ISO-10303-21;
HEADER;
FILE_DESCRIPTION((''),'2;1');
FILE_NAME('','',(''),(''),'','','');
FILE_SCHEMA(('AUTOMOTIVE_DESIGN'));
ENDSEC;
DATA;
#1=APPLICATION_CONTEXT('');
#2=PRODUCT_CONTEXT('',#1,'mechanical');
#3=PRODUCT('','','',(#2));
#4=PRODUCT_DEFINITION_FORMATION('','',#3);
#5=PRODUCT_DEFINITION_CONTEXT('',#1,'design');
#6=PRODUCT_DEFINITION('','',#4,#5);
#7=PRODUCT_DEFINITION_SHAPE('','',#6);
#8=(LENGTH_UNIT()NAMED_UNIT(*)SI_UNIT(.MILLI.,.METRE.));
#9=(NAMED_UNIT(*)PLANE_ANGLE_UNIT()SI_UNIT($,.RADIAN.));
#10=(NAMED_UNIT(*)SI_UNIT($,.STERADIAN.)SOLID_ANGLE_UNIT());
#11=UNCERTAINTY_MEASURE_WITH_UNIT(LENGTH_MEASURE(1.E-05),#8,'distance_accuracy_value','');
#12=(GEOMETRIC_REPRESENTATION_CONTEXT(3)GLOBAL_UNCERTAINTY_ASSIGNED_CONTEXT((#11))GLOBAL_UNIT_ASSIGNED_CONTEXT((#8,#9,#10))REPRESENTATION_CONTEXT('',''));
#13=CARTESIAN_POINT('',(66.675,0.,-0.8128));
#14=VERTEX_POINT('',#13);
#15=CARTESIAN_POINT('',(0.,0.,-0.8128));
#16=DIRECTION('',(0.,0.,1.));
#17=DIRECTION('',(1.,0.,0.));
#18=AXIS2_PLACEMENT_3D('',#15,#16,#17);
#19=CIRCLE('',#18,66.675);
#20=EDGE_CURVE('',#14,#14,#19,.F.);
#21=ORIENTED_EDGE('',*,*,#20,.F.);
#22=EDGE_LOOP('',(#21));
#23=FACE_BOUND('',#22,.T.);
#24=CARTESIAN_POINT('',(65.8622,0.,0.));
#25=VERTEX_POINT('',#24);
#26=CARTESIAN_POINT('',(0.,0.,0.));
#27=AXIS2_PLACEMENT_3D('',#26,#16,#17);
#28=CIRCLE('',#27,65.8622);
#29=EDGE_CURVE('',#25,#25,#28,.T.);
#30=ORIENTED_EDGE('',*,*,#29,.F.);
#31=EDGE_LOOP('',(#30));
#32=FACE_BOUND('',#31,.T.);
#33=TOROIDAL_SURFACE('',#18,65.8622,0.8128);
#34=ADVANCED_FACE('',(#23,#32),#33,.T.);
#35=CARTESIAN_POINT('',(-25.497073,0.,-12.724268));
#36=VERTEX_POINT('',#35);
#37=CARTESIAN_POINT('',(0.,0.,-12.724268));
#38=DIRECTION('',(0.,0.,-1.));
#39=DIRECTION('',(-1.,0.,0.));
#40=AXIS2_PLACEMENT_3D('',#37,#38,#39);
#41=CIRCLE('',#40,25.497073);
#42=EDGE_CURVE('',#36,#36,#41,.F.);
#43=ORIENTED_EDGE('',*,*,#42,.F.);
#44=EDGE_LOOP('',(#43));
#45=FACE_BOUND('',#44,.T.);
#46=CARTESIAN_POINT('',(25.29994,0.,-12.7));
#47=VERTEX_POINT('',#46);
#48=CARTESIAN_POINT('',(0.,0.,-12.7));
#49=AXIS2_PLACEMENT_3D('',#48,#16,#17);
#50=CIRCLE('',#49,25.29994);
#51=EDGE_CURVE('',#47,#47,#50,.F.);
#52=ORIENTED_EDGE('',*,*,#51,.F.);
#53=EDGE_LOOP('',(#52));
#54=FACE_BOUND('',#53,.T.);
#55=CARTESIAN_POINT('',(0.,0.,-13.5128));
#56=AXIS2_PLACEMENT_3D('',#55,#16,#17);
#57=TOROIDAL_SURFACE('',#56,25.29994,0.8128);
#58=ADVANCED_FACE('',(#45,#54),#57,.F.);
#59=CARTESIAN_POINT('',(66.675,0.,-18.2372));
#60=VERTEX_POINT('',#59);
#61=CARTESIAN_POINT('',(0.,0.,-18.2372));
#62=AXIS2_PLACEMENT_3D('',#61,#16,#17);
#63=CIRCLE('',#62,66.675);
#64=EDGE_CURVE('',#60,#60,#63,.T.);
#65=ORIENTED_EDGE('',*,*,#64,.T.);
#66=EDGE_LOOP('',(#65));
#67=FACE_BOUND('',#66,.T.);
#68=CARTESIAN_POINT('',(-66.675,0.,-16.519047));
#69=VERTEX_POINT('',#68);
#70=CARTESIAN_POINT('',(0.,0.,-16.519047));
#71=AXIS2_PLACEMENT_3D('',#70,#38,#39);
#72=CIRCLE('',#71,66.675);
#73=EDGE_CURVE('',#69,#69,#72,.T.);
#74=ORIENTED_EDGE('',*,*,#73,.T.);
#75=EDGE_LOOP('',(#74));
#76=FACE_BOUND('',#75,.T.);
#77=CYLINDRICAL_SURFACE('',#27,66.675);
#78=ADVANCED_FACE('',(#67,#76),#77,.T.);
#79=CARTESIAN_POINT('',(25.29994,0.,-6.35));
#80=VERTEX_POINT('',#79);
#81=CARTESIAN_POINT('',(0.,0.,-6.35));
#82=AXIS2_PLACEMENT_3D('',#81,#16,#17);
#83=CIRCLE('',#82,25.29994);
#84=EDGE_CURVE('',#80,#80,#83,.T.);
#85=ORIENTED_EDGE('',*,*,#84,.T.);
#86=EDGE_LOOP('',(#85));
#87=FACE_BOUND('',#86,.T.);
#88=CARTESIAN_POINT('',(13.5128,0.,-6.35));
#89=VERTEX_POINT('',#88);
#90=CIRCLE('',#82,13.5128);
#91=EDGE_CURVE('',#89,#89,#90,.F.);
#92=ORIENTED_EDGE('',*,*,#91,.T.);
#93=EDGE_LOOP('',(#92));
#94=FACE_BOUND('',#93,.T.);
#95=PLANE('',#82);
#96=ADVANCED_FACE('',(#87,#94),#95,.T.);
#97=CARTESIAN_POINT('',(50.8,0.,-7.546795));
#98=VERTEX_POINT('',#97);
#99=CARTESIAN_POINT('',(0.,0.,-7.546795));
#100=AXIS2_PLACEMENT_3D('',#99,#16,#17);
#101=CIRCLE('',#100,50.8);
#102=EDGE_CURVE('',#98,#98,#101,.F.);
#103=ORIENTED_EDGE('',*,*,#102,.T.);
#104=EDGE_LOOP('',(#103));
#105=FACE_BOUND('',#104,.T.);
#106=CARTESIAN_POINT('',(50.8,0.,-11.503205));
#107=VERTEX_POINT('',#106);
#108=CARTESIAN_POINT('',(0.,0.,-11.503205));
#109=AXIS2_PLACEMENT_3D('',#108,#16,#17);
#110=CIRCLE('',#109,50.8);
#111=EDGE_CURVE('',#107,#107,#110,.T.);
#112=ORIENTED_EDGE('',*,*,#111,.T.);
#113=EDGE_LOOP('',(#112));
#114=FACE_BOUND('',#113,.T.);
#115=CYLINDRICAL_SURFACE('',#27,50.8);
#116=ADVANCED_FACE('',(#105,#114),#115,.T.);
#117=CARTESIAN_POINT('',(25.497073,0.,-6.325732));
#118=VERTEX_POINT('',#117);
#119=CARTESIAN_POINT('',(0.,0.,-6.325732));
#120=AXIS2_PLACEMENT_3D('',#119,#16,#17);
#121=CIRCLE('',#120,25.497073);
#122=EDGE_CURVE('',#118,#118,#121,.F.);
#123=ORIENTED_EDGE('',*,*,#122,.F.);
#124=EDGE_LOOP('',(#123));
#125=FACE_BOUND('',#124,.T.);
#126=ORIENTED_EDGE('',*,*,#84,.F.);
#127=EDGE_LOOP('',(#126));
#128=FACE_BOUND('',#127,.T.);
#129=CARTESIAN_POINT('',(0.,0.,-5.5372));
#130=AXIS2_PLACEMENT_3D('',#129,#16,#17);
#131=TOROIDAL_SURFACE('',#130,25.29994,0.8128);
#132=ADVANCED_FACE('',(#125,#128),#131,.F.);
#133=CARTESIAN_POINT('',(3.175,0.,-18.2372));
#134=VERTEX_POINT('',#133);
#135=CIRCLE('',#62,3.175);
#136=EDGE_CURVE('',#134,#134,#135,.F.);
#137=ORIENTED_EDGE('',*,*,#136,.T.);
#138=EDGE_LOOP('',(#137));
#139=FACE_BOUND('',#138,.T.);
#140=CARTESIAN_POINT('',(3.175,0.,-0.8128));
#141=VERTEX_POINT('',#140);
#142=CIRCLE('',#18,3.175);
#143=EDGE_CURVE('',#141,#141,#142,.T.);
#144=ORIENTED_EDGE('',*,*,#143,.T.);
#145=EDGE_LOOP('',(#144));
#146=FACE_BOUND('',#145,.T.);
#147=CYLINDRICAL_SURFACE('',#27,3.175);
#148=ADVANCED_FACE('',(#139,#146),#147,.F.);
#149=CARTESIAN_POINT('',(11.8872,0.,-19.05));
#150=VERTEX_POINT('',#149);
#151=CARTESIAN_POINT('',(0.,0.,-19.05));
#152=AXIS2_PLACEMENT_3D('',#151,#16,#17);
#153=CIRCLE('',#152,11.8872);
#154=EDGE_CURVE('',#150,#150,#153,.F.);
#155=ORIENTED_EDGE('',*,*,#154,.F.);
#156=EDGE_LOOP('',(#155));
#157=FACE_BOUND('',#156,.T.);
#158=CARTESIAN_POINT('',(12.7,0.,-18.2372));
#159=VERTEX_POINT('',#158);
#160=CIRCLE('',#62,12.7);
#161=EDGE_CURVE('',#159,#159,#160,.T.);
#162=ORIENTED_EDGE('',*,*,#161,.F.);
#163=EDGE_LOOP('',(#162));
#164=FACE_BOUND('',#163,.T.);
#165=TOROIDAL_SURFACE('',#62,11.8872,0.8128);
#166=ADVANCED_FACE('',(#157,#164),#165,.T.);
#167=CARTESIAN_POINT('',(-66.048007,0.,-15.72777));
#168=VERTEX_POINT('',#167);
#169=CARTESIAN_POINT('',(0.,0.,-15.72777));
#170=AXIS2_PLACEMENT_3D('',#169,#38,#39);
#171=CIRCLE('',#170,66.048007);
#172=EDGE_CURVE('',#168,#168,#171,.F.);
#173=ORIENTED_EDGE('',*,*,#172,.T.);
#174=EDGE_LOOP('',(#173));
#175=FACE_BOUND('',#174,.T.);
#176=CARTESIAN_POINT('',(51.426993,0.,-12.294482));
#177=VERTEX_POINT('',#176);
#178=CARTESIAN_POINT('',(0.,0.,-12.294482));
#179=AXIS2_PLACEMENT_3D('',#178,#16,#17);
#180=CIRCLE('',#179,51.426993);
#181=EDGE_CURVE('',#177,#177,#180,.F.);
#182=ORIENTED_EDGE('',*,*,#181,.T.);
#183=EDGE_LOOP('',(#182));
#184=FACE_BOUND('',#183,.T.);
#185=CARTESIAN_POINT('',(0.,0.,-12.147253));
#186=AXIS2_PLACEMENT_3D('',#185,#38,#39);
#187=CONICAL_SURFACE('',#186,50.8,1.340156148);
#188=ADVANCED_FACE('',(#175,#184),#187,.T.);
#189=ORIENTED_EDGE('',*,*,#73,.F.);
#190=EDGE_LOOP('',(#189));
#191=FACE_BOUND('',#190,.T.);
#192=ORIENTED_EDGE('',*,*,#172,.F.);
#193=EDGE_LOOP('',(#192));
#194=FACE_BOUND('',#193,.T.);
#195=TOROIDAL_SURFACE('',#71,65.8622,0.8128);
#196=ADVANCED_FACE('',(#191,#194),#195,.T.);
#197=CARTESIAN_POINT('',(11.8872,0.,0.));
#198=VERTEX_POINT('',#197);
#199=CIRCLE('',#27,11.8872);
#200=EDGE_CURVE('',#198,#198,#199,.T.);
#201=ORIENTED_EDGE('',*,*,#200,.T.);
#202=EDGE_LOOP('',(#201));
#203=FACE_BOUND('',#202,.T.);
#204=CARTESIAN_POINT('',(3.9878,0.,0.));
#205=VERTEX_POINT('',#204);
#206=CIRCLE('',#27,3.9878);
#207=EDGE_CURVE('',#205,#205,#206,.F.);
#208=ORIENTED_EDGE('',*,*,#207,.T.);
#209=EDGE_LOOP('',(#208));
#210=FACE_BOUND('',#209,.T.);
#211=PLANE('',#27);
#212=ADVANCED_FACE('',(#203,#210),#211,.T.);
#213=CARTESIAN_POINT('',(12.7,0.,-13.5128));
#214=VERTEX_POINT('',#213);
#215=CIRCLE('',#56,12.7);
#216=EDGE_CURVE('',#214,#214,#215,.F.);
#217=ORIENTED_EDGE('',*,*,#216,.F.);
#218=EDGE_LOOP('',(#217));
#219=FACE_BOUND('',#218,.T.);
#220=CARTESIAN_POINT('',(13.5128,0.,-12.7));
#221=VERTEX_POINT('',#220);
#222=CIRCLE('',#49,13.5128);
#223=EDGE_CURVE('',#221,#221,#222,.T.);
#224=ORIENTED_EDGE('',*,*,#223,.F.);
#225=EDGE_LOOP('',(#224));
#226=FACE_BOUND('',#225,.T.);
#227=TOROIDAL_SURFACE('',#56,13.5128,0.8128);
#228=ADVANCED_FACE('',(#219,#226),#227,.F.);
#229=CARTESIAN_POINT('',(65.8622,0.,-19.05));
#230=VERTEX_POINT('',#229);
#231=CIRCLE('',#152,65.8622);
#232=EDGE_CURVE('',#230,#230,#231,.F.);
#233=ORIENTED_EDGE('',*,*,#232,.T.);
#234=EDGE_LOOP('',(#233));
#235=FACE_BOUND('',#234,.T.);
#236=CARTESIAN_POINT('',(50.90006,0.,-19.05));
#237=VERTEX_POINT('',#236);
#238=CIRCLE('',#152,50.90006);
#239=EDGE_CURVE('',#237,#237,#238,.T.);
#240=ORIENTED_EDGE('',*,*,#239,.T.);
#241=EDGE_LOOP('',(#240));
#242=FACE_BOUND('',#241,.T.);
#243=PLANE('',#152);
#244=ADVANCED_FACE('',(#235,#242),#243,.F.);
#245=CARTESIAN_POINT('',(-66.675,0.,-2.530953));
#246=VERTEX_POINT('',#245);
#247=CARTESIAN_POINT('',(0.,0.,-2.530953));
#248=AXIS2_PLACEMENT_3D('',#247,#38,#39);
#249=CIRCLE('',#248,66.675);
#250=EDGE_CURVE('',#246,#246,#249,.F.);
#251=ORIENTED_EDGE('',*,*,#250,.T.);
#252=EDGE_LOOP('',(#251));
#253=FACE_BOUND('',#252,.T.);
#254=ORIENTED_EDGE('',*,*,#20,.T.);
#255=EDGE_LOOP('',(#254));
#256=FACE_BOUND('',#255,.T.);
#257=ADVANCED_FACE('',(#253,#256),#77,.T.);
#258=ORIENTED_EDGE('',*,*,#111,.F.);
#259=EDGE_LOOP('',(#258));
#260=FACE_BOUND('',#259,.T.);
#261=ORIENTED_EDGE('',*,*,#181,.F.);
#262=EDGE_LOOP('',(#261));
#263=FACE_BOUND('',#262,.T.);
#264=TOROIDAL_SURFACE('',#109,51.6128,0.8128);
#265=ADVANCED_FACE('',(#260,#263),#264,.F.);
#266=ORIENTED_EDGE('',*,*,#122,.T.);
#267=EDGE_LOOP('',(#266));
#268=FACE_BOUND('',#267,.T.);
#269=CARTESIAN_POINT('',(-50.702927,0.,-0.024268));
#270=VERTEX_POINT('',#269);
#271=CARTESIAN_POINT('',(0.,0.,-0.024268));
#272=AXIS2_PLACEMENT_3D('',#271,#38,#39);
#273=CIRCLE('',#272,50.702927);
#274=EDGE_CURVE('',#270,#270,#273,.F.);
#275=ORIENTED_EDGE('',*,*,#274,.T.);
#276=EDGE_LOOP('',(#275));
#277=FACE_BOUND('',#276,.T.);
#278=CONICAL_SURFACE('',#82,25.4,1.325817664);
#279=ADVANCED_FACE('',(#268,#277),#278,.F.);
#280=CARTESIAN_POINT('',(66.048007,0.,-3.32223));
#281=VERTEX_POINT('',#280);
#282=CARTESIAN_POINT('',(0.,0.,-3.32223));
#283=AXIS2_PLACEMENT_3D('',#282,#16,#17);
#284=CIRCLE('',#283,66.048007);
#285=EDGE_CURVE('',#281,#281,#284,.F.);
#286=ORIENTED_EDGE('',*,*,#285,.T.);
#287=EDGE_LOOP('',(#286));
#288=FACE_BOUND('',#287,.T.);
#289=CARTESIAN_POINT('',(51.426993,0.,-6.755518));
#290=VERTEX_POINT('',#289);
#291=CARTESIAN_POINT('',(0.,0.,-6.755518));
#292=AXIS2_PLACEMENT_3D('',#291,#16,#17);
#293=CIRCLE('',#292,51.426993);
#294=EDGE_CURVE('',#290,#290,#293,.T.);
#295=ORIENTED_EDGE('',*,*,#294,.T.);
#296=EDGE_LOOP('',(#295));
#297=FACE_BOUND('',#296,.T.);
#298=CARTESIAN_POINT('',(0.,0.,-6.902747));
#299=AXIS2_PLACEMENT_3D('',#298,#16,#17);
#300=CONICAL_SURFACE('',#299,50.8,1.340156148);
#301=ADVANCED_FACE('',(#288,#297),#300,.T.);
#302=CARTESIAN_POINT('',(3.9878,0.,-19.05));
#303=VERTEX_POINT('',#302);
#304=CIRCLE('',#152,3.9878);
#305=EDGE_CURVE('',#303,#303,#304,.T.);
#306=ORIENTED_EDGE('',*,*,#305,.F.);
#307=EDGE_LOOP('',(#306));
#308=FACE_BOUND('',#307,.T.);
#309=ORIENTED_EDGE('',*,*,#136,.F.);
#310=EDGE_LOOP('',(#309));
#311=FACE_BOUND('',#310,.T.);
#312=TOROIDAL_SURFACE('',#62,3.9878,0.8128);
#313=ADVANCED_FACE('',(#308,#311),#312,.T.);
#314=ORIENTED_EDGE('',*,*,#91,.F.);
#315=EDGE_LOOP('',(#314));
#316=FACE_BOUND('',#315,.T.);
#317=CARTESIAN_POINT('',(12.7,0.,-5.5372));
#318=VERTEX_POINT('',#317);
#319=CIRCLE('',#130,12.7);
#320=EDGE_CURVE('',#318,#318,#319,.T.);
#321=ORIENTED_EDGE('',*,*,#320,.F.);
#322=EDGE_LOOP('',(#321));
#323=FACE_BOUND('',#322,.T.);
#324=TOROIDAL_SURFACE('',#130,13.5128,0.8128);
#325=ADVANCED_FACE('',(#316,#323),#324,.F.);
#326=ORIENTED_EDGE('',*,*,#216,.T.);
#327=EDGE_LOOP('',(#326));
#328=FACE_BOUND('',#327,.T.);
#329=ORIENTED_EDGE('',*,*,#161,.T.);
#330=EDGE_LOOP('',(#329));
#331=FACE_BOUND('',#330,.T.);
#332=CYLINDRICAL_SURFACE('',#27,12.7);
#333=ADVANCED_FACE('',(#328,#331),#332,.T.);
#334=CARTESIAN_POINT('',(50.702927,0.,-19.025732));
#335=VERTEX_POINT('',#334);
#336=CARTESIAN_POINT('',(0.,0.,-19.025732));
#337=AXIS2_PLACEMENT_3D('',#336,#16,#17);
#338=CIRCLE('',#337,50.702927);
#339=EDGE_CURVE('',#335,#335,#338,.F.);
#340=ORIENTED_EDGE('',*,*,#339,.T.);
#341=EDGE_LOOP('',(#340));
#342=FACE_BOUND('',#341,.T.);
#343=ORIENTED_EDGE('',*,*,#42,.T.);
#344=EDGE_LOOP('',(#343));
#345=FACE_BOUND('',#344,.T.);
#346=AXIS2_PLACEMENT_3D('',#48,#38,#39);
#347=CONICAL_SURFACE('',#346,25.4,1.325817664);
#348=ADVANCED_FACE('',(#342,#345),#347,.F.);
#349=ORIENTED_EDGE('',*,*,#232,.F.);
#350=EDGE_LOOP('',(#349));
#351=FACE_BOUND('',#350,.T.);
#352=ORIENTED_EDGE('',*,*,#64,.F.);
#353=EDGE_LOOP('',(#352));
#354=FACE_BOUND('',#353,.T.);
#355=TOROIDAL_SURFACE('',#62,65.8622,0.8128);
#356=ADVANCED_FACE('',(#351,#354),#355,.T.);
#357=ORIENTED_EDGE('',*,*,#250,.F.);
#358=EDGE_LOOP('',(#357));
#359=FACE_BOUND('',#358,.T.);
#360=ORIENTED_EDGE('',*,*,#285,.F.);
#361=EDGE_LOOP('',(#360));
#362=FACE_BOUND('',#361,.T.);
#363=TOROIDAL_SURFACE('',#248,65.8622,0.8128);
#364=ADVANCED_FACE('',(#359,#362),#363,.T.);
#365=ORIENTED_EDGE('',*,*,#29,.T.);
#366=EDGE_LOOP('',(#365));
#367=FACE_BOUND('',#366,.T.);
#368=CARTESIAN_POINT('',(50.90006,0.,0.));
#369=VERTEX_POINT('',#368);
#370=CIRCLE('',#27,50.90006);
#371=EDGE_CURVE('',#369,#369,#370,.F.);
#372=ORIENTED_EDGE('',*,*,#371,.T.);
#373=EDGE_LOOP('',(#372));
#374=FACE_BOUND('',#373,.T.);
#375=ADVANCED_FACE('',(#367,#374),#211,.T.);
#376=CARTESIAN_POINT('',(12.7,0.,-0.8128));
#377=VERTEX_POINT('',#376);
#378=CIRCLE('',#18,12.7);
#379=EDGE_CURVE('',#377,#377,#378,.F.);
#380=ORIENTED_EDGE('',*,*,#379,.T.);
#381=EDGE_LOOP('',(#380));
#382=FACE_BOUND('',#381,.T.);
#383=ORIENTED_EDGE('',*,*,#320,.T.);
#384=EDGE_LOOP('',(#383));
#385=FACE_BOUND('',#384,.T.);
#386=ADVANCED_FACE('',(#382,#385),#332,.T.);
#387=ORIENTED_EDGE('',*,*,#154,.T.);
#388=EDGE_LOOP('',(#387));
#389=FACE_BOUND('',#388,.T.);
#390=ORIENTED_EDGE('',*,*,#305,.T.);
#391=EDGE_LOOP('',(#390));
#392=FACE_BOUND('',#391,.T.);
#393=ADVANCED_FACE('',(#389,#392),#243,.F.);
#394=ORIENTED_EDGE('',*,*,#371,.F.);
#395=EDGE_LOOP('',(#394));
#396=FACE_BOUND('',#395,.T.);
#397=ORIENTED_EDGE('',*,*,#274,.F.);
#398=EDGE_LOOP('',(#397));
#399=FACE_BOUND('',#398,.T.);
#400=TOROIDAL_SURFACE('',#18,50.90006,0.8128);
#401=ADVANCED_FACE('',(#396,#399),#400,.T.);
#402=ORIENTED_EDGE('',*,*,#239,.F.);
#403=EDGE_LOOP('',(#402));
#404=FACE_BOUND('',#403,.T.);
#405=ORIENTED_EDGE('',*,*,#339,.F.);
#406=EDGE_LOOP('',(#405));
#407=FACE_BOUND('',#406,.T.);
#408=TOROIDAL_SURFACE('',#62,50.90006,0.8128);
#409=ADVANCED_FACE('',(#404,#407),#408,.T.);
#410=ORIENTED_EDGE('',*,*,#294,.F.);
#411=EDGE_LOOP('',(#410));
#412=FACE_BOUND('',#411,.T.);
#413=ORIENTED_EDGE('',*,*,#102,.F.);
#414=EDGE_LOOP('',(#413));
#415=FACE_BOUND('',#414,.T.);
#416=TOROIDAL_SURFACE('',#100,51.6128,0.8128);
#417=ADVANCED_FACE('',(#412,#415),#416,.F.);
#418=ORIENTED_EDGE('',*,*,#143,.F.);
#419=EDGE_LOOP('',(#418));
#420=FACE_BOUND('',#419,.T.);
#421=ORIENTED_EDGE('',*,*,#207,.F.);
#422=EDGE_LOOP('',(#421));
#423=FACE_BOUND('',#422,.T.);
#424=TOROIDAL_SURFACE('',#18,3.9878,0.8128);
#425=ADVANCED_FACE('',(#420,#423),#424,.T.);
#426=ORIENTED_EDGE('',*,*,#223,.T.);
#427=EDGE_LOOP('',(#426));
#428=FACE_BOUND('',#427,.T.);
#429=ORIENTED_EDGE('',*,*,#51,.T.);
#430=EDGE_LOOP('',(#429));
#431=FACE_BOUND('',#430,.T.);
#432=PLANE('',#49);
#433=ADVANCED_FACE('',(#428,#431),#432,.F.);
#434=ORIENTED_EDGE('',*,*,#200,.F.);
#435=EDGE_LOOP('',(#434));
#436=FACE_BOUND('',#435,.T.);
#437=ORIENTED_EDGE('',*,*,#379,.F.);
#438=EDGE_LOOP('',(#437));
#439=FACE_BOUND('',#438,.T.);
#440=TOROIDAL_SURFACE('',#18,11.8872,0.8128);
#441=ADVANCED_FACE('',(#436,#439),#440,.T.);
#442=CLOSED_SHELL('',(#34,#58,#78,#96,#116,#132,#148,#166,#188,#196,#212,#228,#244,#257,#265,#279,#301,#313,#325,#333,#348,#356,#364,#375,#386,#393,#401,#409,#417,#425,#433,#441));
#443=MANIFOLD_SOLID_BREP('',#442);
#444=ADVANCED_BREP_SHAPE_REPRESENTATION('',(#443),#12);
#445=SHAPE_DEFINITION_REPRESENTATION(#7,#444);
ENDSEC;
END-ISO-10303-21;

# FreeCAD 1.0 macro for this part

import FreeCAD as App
import Part
import Sketcher
from FreeCAD import Vector
Q = App.Units.Quantity


def edges_at(feature, points):
    """Names of the edges that pass closest to the given points."""
    edges = feature.Shape.Edges
    near = lambda p: min(range(len(edges)), key=lambda i: edges[i].distToShape(Part.Vertex(*p))[0])
    return sorted({f"Edge{near(p) + 1}" for p in points})

doc = App.newDocument("Part")
body = doc.addObject("PartDesign::Body", "Body")

# Sketch on XZ plane
sketch1 = body.newObject("Sketcher::SketchObject", "Sketch")
sketch1.AttachmentSupport = (doc.getObject("XZ_Plane"), [""])
sketch1.MapMode = "FlatFace"
sketch1.addGeometry([
    Part.LineSegment(Vector(3.2, -19.1, 0), Vector(3.2, 0, 0)),  # 0
    Part.LineSegment(Vector(3.2, 0, 0), Vector(12.7, 0, 0)),  # 1
    Part.LineSegment(Vector(12.7, 0, 0), Vector(12.7, -6.3, 0)),  # 2
    Part.LineSegment(Vector(12.7, -6.3, 0), Vector(25.4, -6.3, 0)),  # 3
    Part.LineSegment(Vector(25.4, -6.3, 0), Vector(50.8, 0, 0)),  # 4
    Part.LineSegment(Vector(50.8, 0, 0), Vector(66.7, 0, 0)),  # 5
    Part.LineSegment(Vector(66.7, 0, 0), Vector(66.7, -3.2, 0)),  # 6
    Part.LineSegment(Vector(66.7, -3.2, 0), Vector(50.8, -6.9, 0)),  # 7
    Part.LineSegment(Vector(50.8, -6.9, 0), Vector(50.8, -12.1, 0)),  # 8
    Part.LineSegment(Vector(50.8, -12.1, 0), Vector(66.7, -15.9, 0)),  # 9
    Part.LineSegment(Vector(66.7, -15.9, 0), Vector(66.7, -19.1, 0)),  # 10
    Part.LineSegment(Vector(66.7, -19.1, 0), Vector(50.8, -19.1, 0)),  # 11
    Part.LineSegment(Vector(50.8, -19.1, 0), Vector(25.4, -12.7, 0)),  # 12
    Part.LineSegment(Vector(25.4, -12.7, 0), Vector(12.7, -12.7, 0)),  # 13
    Part.LineSegment(Vector(12.7, -12.7, 0), Vector(12.7, -19.1, 0)),  # 14
    Part.LineSegment(Vector(12.7, -19.1, 0), Vector(3.2, -19.1, 0)),  # 15
], False)
sketch1.addConstraint([
    Sketcher.Constraint("Coincident", 0, 2, 1, 1),
    Sketcher.Constraint("Coincident", 1, 2, 2, 1),
    Sketcher.Constraint("Coincident", 2, 2, 3, 1),
    Sketcher.Constraint("Coincident", 3, 2, 4, 1),
    Sketcher.Constraint("Coincident", 4, 2, 5, 1),
    Sketcher.Constraint("Coincident", 5, 2, 6, 1),
    Sketcher.Constraint("Coincident", 6, 2, 7, 1),
    Sketcher.Constraint("Coincident", 7, 2, 8, 1),
    Sketcher.Constraint("Coincident", 8, 2, 9, 1),
    Sketcher.Constraint("Coincident", 9, 2, 10, 1),
    Sketcher.Constraint("Coincident", 10, 2, 11, 1),
    Sketcher.Constraint("Coincident", 11, 2, 12, 1),
    Sketcher.Constraint("Coincident", 12, 2, 13, 1),
    Sketcher.Constraint("Coincident", 13, 2, 14, 1),
    Sketcher.Constraint("Coincident", 14, 2, 15, 1),
    Sketcher.Constraint("Coincident", 15, 2, 0, 1),
    Sketcher.Constraint("Vertical", 0),
    Sketcher.Constraint("Horizontal", 1),
    Sketcher.Constraint("Vertical", 2),
    Sketcher.Constraint("Horizontal", 3),
    Sketcher.Constraint("Horizontal", 5),
    Sketcher.Constraint("Vertical", 6),
    Sketcher.Constraint("Vertical", 8),
    Sketcher.Constraint("Vertical", 10),
    Sketcher.Constraint("Horizontal", 11),
    Sketcher.Constraint("Horizontal", 13),
    Sketcher.Constraint("Vertical", 14),
    Sketcher.Constraint("Horizontal", 15),
    Sketcher.Constraint("PointOnObject", 0, 2, -1),
    Sketcher.Constraint("PointOnObject", 4, 2, -1),
    Sketcher.Constraint("Horizontal", 11, 2, 14, 2),
    Sketcher.Constraint("Vertical", 4, 2, 7, 2),
    Sketcher.Constraint("Vertical", 6, 2, 9, 2),
    Sketcher.Constraint("Vertical", 8, 2, 11, 2),
    Sketcher.Constraint("Vertical", 3, 2, 12, 2),
    Sketcher.Constraint("Vertical", 2, 2, 13, 2),
    Sketcher.Constraint("Equal", 6, 10),
    Sketcher.Constraint("Equal", 2, 14),
    Sketcher.Constraint("Equal", 7, 9),
    Sketcher.Constraint("DistanceX", 3, 1, 3, 2, Q("0.5 in")),
    Sketcher.Constraint("DistanceX", -1, 1, 3, 2, Q("1 in")),
    Sketcher.Constraint("DistanceX", -1, 1, 4, 2, Q("2 in")),
    Sketcher.Constraint("DistanceY", 0, 1, 0, 2, Q("0.75 in")),
    Sketcher.Constraint("DistanceY", 2, 2, 2, 1, Q("0.25 in")),
    Sketcher.Constraint("DistanceX", 0, 2, 5, 2, Q("2.5 in")),
    Sketcher.Constraint("DistanceY", 9, 2, 6, 2, Q("0.5 in")),
    Sketcher.Constraint("DistanceX", 1, 1, 1, 2, Q("0.375 in")),
    Sketcher.Constraint("Distance", 7, Q("0.642 in")),
])
revolution = body.newObject("PartDesign::Revolution", "Revolution")
revolution.Profile = sketch1
revolution.ReferenceAxis = (sketch1, ["V_Axis"])
revolution.Angle = 360
doc.recompute()

fillet = body.newObject("PartDesign::Fillet", "Fillet")
fillet.Base = (revolution, edges_at(revolution, [
    (-50.8, 0, -19.05),
    (-66.675, 0, -19.05),
    (-66.675, 0, -15.875),
    (-50.8, 0, -12.147),
    (-50.8, 0, -6.903),
    (-66.675, 0, -3.175),
    (-66.675, 0, 0),
    (-50.8, 0, 0),
    (-25.4, 0, -6.35),
    (-12.7, 0, -6.35),
    (-12.7, 0, 0),
    (-3.175, 0, 0),
    (-3.175, 0, -19.05),
    (-12.7, 0, -19.05),
    (-12.7, 0, -12.7),
    (-25.4, 0, -12.7),
]))
fillet.Radius = Q("0.032 in")

doc.recompute()
